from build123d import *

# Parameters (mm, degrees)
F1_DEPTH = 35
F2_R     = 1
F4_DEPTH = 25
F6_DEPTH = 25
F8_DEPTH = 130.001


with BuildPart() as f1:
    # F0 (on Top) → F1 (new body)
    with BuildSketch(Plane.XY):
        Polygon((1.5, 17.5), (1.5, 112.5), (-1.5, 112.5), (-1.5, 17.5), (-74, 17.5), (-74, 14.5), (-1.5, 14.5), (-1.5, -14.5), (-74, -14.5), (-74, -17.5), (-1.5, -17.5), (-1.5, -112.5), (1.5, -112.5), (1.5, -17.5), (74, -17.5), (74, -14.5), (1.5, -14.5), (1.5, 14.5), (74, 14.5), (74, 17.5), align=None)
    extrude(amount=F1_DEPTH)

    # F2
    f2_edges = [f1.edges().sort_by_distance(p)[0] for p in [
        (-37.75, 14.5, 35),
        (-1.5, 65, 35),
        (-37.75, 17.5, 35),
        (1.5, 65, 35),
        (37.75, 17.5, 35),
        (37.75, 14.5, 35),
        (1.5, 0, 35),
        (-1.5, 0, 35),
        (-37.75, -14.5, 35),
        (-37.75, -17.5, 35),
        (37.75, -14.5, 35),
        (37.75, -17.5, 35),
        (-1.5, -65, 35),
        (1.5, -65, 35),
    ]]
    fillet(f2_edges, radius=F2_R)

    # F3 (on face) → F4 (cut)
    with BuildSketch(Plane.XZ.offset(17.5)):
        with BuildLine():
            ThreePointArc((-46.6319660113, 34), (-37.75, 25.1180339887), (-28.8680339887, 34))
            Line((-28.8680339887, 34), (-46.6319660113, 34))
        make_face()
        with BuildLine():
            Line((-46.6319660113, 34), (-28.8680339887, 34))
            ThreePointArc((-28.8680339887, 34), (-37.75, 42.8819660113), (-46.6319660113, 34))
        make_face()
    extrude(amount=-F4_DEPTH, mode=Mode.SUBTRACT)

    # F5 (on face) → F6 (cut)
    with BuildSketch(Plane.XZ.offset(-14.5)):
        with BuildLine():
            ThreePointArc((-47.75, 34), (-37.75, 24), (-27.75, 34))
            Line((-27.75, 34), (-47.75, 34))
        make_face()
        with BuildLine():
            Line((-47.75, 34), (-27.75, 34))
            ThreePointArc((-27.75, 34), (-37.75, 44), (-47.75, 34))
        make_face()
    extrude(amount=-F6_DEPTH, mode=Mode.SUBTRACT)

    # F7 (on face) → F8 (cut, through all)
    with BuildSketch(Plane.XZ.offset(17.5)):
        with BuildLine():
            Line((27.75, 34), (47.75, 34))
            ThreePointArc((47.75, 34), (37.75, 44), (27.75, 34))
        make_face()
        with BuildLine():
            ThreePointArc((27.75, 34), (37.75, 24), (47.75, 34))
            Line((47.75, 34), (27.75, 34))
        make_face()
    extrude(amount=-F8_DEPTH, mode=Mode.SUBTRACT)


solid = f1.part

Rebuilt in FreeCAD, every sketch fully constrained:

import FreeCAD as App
import Part
import Sketcher

V = App.Vector
Q = App.Units.Quantity


def edges_at(feature, points):
    """Names of the edges that pass closest to the given points."""
    edges = feature.Shape.Edges
    near = lambda p: min(range(len(edges)), key=lambda i: edges[i].distToShape(Part.Vertex(*p))[0])
    return sorted({f"Edge{near(p) + 1}" for p in points})


def add_polygon(sketch, points):
    """Adds a closed chain of lines whose ends are joined by coincident constraints."""
    first, n = sketch.GeometryCount, len(points)
    for a, b in zip(points, points[1:] + points[:1]):
        sketch.addGeometry(Part.LineSegment(App.Vector(*a, 0), App.Vector(*b, 0)), False)
    for i in range(n):
        sketch.addConstraint(Sketcher.Constraint("Coincident", first + i, 2, first + (i + 1) % n, 1))

doc = App.newDocument("Part")
params = doc.addObject("Spreadsheet::Sheet", "Params")
for row, (alias, value) in enumerate([
    ("sketch1_width", "3 mm"),
    ("sketch1_height", "95 mm"),
    ("sketch1_height2", "29 mm"),
    ("sketch1_width2", "72.5 mm"),
    ("pad1_length", "35 mm"),
    ("fillet_radius", "1 mm"),
    ("pocket1_length", "25 mm"),
    ("sketch3_diameter", "20 mm"),
    ("pocket2_length", "25 mm"),
    ("sketch4_diameter", "20 mm"),
], start=1):
    params.set(f"A{row}", alias)
    params.set(f"B{row}", "=" + value)
    params.setAlias(f"B{row}", alias)

body = doc.addObject("PartDesign::Body", "Body")

sketch1 = doc.addObject("Sketcher::SketchObject", "Sketch")
body.addObject(sketch1)
sketch1.AttachmentSupport = (doc.XY_Plane, [""])
sketch1.MapMode = "FlatFace"
add_polygon(sketch1, [(1.5, 17.5), (1.5, 112.5), (-1.5, 112.5), (-1.5, 17.5), (-74, 17.5), (-74, 14.5), (-1.5, 14.5), (-1.5, -14.5), (-74, -14.5), (-74, -17.5), (-1.5, -17.5), (-1.5, -112.5), (1.5, -112.5), (1.5, -17.5), (74, -17.5), (74, -14.5), (1.5, -14.5), (1.5, 14.5), (74, 14.5), (74, 17.5)])
sketch1.addConstraint(Sketcher.Constraint("Vertical", 0))
sketch1.addConstraint(Sketcher.Constraint("Horizontal", 1))
sketch1.addConstraint(Sketcher.Constraint("Vertical", 2))
sketch1.addConstraint(Sketcher.Constraint("Horizontal", 3))
sketch1.addConstraint(Sketcher.Constraint("Vertical", 4))
sketch1.addConstraint(Sketcher.Constraint("Horizontal", 5))
sketch1.addConstraint(Sketcher.Constraint("Vertical", 6))
sketch1.addConstraint(Sketcher.Constraint("Horizontal", 7))
sketch1.addConstraint(Sketcher.Constraint("Vertical", 8))
sketch1.addConstraint(Sketcher.Constraint("Horizontal", 9))
sketch1.addConstraint(Sketcher.Constraint("Vertical", 10))
sketch1.addConstraint(Sketcher.Constraint("Horizontal", 11))
sketch1.addConstraint(Sketcher.Constraint("Vertical", 12))
sketch1.addConstraint(Sketcher.Constraint("Horizontal", 13))
sketch1.addConstraint(Sketcher.Constraint("Vertical", 14))
sketch1.addConstraint(Sketcher.Constraint("Horizontal", 15))
sketch1.addConstraint(Sketcher.Constraint("Vertical", 16))
sketch1.addConstraint(Sketcher.Constraint("Horizontal", 17))
sketch1.addConstraint(Sketcher.Constraint("Vertical", 18))
sketch1.addConstraint(Sketcher.Constraint("Horizontal", 19))
sketch1.addConstraint(Sketcher.Constraint("Symmetric", 0, 2, 10, 2, -1, 1))
sketch1.addConstraint(Sketcher.Constraint("Symmetric", 2, 2, 12, 2, -1, 1))
sketch1.addConstraint(Sketcher.Constraint("Symmetric", 4, 2, 14, 2, -1, 1))
sketch1.addConstraint(Sketcher.Constraint("Symmetric", 6, 2, 16, 2, -1, 1))
sketch1.addConstraint(Sketcher.Constraint("Symmetric", 8, 2, 18, 2, -1, 1))
sketch1.addConstraint(Sketcher.Constraint("Symmetric", 9, 2, 12, 2, -2))
sketch1.addConstraint(Sketcher.Constraint("Symmetric", 7, 2, 14, 2, -2))
sketch1.addConstraint(Sketcher.Constraint("Vertical", 2, 2, 5, 2))
sketch1.addConstraint(Sketcher.Constraint("Equal", 11, 4))
sketch1.addConstraint(Sketcher.Constraint("DistanceX", 1, 2, 1, 1, Q("3 mm")))
sketch1.addConstraint(Sketcher.Constraint("DistanceY", 0, 1, 0, 2, Q("95 mm")))
sketch1.addConstraint(Sketcher.Constraint("DistanceY", 6, 2, 6, 1, Q("29 mm")))
sketch1.addConstraint(Sketcher.Constraint("DistanceX", 3, 2, 3, 1, Q("72.5 mm")))
sketch1.setExpression("Constraints[49]", "Params.sketch1_width")
sketch1.setExpression("Constraints[50]", "Params.sketch1_height")
sketch1.setExpression("Constraints[51]", "Params.sketch1_height2")
sketch1.setExpression("Constraints[52]", "Params.sketch1_width2")
pad1 = doc.addObject("PartDesign::Pad", "Pad")
body.addObject(pad1)
pad1.Profile = sketch1
pad1.setExpression("Length", "Params.pad1_length")
doc.recompute()

fillet = doc.addObject("PartDesign::Fillet", "Fillet")
body.addObject(fillet)
fillet.Base = (pad1, edges_at(pad1, [
    (-37.75, 14.5, 35),
    (-1.5, 65, 35),
    (-37.75, 17.5, 35),
    (1.5, 65, 35),
    (37.75, 17.5, 35),
    (37.75, 14.5, 35),
    (1.5, 0, 35),
    (-1.5, 0, 35),
    (-37.75, -14.5, 35),
    (-37.75, -17.5, 35),
    (37.75, -14.5, 35),
    (37.75, -17.5, 35),
    (-1.5, -65, 35),
    (1.5, -65, 35),
]))
fillet.setExpression("Radius", "Params.fillet_radius")

sketch2 = doc.addObject("Sketcher::SketchObject", "Sketch001")
body.addObject(sketch2)
sketch2.AttachmentSupport = (doc.XZ_Plane, [""])
sketch2.MapMode = "FlatFace"
sketch2.AttachmentOffset = App.Placement(V(0, 0, 17.5), App.Rotation())
sketch2.addGeometry(Part.Circle(V(-37.75, 34, 0), V(0, 0, 1), 8.881966), False)
sketch2.addConstraint(Sketcher.Constraint("DistanceY", -1, 1, 0, 3, Q("34 mm")))
sketch2.addConstraint(Sketcher.Constraint("DistanceX", 0, 3, -1, 1, Q("37.75 mm")))
sketch2.addConstraint(Sketcher.Constraint("Diameter", 0, Q("17.763932 mm")))
pocket1 = doc.addObject("PartDesign::Pocket", "Pocket")
body.addObject(pocket1)
pocket1.Profile = sketch2
pocket1.setExpression("Length", "Params.pocket1_length")

sketch3 = doc.addObject("Sketcher::SketchObject", "Sketch002")
body.addObject(sketch3)
sketch3.AttachmentSupport = (doc.XZ_Plane, [""])
sketch3.MapMode = "FlatFace"
sketch3.AttachmentOffset = App.Placement(V(0, 0, -14.5), App.Rotation())
sketch3.addGeometry(Part.Circle(V(-37.75, 34, 0), V(0, 0, 1), 10), False)
sketch3.addConstraint(Sketcher.Constraint("Diameter", 0, Q("20 mm")))
sketch3.addConstraint(Sketcher.Constraint("DistanceY", -1, 1, 0, 3, Q("34 mm")))
sketch3.addConstraint(Sketcher.Constraint("DistanceX", 0, 3, -1, 1, Q("37.75 mm")))
sketch3.setExpression("Constraints[0]", "Params.sketch3_diameter")
pocket2 = doc.addObject("PartDesign::Pocket", "Pocket001")
body.addObject(pocket2)
pocket2.Profile = sketch3
pocket2.setExpression("Length", "Params.pocket2_length")

sketch4 = doc.addObject("Sketcher::SketchObject", "Sketch003")
body.addObject(sketch4)
sketch4.AttachmentSupport = (doc.XZ_Plane, [""])
sketch4.MapMode = "FlatFace"
sketch4.AttachmentOffset = App.Placement(V(0, 0, 17.5), App.Rotation())
sketch4.addGeometry(Part.Circle(V(37.75, 34, 0), V(0, 0, 1), 10), False)
sketch4.addConstraint(Sketcher.Constraint("Diameter", 0, Q("20 mm")))
sketch4.addConstraint(Sketcher.Constraint("DistanceY", -1, 1, 0, 3, Q("34 mm")))
sketch4.addConstraint(Sketcher.Constraint("DistanceX", -1, 1, 0, 3, Q("37.75 mm")))
sketch4.setExpression("Constraints[0]", "Params.sketch4_diameter")
pocket3 = doc.addObject("PartDesign::Pocket", "Pocket002")
body.addObject(pocket3)
pocket3.Profile = sketch4
pocket3.Type = "ThroughAll"

doc.recompute()
